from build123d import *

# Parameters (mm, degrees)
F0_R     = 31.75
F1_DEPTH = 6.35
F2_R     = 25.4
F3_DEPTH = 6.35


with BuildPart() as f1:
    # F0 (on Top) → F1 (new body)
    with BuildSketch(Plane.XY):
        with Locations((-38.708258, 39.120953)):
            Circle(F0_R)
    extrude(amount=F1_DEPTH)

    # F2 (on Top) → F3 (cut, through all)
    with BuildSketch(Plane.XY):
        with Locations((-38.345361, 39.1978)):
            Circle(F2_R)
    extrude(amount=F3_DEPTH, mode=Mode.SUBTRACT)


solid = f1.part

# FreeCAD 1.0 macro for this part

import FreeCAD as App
import Part
import Sketcher
from FreeCAD import Vector
Q = App.Units.Quantity

doc = App.newDocument("Part")
body = doc.addObject("PartDesign::Body", "Body")

sketch1 = doc.addObject("Sketcher::SketchObject", "Sketch")
body.addObject(sketch1)
sketch1.AttachmentSupport = (doc.XY_Plane, [""])
sketch1.MapMode = "FlatFace"
sketch1.addGeometry(Part.Circle(Vector(-39, 39, 0), Vector(0, 0, 1), 32), False)
sketch1.addConstraint([
    Sketcher.Constraint("Diameter", 0, Q("2.5 in")),
    Sketcher.Constraint("DistanceX", 0, 3, -1, 1, Q("38.708258 mm")),
    Sketcher.Constraint("DistanceY", -1, 1, 0, 3, Q("39.120953 mm")),
])
pad1 = doc.addObject("PartDesign::Pad", "Pad")
body.addObject(pad1)
pad1.Profile = sketch1
pad1.Length = Q("0.25 in")

sketch2 = doc.addObject("Sketcher::SketchObject", "Sketch001")
body.addObject(sketch2)
sketch2.AttachmentSupport = (doc.XY_Plane, [""])
sketch2.MapMode = "FlatFace"
sketch2.addGeometry(Part.Circle(Vector(-38, 39, 0), Vector(0, 0, 1), 25), False)
sketch2.addConstraint([
    Sketcher.Constraint("Diameter", 0, Q("2 in")),
    Sketcher.Constraint("DistanceY", -1, 1, 0, 3, Q("39.1978 mm")),
    Sketcher.Constraint("DistanceX", 0, 3, -1, 1, Q("38.345361 mm")),
])
pocket1 = doc.addObject("PartDesign::Pocket", "Pocket")
body.addObject(pocket1)
pocket1.Profile = sketch2
pocket1.Type = "ThroughAll"
pocket1.Reversed = True

doc.recompute()
